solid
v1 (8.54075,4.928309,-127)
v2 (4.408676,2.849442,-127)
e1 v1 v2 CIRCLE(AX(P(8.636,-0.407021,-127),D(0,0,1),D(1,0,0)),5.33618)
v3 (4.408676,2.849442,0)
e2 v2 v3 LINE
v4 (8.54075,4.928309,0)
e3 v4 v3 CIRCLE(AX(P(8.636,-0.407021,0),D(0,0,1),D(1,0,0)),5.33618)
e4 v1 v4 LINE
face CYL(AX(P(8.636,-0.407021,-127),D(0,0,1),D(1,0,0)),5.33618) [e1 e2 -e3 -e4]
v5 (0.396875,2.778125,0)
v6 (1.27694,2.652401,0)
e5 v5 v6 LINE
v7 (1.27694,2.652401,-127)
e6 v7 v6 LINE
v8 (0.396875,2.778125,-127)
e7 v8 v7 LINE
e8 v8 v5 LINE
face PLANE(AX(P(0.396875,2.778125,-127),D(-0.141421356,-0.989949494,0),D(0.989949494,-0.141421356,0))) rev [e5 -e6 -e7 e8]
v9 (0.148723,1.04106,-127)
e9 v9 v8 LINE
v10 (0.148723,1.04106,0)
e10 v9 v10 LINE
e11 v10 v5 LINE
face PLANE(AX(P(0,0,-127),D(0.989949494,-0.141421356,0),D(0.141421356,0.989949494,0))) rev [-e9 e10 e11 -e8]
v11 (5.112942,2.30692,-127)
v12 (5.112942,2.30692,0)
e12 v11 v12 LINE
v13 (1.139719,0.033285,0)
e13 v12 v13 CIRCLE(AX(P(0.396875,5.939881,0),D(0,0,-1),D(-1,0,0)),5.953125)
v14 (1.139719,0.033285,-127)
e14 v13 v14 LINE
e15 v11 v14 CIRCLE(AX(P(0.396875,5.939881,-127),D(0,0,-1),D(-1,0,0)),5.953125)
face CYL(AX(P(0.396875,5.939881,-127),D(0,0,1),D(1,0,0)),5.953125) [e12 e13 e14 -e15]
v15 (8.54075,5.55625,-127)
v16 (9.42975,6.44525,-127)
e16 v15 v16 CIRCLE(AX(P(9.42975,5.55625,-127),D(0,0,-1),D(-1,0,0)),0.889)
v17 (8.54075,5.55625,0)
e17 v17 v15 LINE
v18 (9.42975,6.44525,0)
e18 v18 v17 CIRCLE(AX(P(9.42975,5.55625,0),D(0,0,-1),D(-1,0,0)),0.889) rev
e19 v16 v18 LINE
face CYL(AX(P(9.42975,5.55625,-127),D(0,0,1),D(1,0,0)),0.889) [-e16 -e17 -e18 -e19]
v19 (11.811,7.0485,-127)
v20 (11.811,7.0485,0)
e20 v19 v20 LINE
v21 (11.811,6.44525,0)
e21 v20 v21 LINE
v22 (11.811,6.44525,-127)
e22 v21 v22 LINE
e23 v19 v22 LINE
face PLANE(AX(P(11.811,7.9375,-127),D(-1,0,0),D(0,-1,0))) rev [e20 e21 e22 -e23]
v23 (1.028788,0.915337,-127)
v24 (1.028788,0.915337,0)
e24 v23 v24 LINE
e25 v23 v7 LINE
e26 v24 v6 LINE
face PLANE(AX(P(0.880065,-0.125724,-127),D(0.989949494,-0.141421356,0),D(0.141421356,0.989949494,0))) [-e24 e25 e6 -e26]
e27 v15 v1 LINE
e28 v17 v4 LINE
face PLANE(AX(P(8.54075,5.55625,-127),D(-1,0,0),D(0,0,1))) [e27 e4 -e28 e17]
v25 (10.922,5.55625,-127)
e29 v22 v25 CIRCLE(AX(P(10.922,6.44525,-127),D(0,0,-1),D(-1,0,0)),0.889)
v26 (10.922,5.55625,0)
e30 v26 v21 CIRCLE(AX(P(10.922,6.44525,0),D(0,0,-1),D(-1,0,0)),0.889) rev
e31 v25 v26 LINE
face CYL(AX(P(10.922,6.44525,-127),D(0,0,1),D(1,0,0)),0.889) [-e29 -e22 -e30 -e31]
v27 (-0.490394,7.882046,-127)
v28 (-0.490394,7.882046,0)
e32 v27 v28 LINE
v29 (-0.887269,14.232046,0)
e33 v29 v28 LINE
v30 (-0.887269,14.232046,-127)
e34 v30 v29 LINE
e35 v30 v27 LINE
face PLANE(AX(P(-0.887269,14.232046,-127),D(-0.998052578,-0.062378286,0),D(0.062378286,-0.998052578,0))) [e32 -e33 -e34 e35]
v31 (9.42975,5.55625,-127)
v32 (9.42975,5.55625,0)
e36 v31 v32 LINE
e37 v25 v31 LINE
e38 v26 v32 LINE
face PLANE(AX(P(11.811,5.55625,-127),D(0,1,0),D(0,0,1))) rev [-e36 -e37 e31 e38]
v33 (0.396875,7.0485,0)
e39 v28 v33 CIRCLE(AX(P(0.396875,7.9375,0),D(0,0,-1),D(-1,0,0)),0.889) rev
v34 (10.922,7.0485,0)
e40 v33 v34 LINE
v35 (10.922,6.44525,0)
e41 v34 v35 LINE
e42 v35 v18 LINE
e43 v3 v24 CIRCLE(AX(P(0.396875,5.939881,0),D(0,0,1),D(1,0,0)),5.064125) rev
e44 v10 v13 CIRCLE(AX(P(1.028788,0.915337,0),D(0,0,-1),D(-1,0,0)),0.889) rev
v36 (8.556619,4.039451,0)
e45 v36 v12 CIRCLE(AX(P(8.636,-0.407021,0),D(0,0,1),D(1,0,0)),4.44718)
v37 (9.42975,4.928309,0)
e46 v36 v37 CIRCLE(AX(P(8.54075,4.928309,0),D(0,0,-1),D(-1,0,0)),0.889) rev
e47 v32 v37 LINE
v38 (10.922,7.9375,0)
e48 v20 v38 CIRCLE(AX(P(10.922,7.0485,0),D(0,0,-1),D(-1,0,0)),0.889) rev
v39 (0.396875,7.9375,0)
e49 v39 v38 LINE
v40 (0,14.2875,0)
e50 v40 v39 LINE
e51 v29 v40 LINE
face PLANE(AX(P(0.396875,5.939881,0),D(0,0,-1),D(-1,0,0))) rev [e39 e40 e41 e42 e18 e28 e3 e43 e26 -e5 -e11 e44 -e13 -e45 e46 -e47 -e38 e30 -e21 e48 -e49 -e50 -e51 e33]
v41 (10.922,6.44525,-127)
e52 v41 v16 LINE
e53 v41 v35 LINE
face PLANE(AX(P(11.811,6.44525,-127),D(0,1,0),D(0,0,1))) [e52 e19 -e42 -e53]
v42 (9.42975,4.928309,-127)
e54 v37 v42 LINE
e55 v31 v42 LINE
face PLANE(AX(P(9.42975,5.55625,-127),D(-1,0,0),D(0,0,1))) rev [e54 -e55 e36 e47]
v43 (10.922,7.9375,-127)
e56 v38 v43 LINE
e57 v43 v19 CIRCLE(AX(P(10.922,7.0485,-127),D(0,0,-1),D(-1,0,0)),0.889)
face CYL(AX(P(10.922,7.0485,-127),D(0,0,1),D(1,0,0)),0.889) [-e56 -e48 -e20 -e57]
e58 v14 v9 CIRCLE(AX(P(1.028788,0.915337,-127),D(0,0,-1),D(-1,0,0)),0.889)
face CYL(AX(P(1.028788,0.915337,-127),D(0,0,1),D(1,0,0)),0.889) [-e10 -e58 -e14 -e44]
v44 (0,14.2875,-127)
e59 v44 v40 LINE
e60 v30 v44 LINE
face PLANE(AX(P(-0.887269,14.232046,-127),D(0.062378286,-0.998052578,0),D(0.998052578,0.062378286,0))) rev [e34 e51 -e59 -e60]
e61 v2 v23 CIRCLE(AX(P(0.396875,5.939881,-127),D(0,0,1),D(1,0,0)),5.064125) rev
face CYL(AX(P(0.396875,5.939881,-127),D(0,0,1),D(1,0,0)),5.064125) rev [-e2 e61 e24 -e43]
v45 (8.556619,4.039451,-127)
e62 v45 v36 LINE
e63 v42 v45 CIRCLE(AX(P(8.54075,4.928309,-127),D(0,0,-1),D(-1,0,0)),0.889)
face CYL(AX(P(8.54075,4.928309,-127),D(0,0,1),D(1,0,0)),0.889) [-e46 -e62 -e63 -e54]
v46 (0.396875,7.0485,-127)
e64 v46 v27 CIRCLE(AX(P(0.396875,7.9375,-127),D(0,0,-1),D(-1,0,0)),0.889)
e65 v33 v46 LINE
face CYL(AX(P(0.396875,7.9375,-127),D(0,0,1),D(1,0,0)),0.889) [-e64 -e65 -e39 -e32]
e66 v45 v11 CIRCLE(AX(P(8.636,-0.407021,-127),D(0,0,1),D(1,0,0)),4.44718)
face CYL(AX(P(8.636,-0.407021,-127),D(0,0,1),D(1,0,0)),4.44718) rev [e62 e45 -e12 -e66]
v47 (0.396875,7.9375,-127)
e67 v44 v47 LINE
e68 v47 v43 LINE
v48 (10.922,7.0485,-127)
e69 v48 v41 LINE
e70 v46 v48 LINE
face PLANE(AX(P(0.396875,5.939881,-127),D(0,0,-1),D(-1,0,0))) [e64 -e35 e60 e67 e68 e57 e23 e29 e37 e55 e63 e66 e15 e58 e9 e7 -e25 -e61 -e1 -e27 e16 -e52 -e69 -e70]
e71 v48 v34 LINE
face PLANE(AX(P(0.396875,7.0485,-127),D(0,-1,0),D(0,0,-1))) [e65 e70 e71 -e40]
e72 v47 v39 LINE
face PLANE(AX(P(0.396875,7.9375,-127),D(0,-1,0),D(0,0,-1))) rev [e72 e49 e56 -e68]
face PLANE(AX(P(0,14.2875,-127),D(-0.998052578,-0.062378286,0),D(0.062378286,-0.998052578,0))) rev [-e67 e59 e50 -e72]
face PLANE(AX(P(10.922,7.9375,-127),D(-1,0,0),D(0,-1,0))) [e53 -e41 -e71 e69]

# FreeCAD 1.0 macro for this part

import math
import FreeCAD as App
import Part
import Sketcher

V = App.Vector
Q = App.Units.Quantity


def edges_at(feature, points):
    """Names of the edges that pass closest to the given points."""
    edges = feature.Shape.Edges
    near = lambda p: min(range(len(edges)), key=lambda i: edges[i].distToShape(Part.Vertex(*p))[0])
    return sorted({f"Edge{near(p) + 1}" for p in points})

doc = App.newDocument("Part")
body = doc.addObject("PartDesign::Body", "Body")

sketch1 = doc.addObject("Sketcher::SketchObject", "Sketch")
body.addObject(sketch1)
sketch1.AttachmentSupport = (doc.XY_Plane, [""])
sketch1.MapMode = "FlatFace"
sketch1.addGeometry([
    Part.LineSegment(V(0.4, 7.9, 0), V(0, 14.3, 0)),
    Part.LineSegment(V(0, 14.3, 0), V(-0.9, 14.2, 0)),
    Part.LineSegment(V(-0.9, 14.2, 0), V(-0.4, 7, 0)),
    Part.LineSegment(V(-0.4, 7, 0), V(10.9, 7, 0)),
    Part.LineSegment(V(10.9, 7, 0), V(10.9, 6.4, 0)),
    Part.LineSegment(V(10.9, 6.4, 0), V(8.5, 6.4, 0)),
    Part.LineSegment(V(8.5, 6.4, 0), V(8.5, 4.9, 0)),
    Part.ArcOfCircle(Part.Circle(V(8.6, -0.4, 0), V(0, 0, 1), 5.3), math.radians(91), math.radians(142)),
    Part.ArcOfCircle(Part.Circle(V(0.4, 5.9, 0), V(0, 0, 1), 5.1), math.radians(-83), math.radians(-38)),
    Part.LineSegment(V(1, 0.9, 0), V(1.3, 2.7, 0)),
    Part.LineSegment(V(1.3, 2.7, 0), V(0.4, 2.8, 0)),
    Part.LineSegment(V(0.4, 2.8, 0), V(0, 0, 0)),
    Part.ArcOfCircle(Part.Circle(V(0.4, 5.9, 0), V(0, 0, 1), 6), math.radians(-94), math.radians(-38)),
    Part.ArcOfCircle(Part.Circle(V(8.6, -0.4, 0), V(0, 0, 1), 4.4), math.radians(80), math.radians(142)),
    Part.LineSegment(V(9.4, 4, 0), V(9.4, 5.6, 0)),
    Part.LineSegment(V(9.4, 5.6, 0), V(11.8, 5.6, 0)),
    Part.LineSegment(V(11.8, 5.6, 0), V(11.8, 7.9, 0)),
    Part.LineSegment(V(11.8, 7.9, 0), V(0.4, 7.9, 0)),
], False)
sketch1.addConstraint([
    Sketcher.Constraint("Coincident", 0, 2, 1, 1),
    Sketcher.Constraint("Coincident", 1, 2, 2, 1),
    Sketcher.Constraint("Coincident", 2, 2, 3, 1),
    Sketcher.Constraint("Coincident", 3, 2, 4, 1),
    Sketcher.Constraint("Coincident", 4, 2, 5, 1),
    Sketcher.Constraint("Coincident", 5, 2, 6, 1),
    Sketcher.Constraint("Coincident", 6, 2, 7, 1),
    Sketcher.Constraint("Tangent", 7, 2, 8, 2),
    Sketcher.Constraint("Coincident", 8, 1, 9, 1),
    Sketcher.Constraint("Coincident", 9, 2, 10, 1),
    Sketcher.Constraint("Coincident", 10, 2, 11, 1),
    Sketcher.Constraint("Coincident", 11, 2, 12, 1),
    Sketcher.Constraint("Tangent", 12, 2, 13, 2),
    Sketcher.Constraint("Coincident", 13, 1, 14, 1),
    Sketcher.Constraint("Coincident", 14, 2, 15, 1),
    Sketcher.Constraint("Coincident", 15, 2, 16, 1),
    Sketcher.Constraint("Coincident", 16, 2, 17, 1),
    Sketcher.Constraint("Coincident", 17, 2, 0, 1),
    Sketcher.Constraint("Horizontal", 3),
    Sketcher.Constraint("Vertical", 4),
    Sketcher.Constraint("Horizontal", 5),
    Sketcher.Constraint("Vertical", 6),
    Sketcher.Constraint("Vertical", 14),
    Sketcher.Constraint("Horizontal", 15),
    Sketcher.Constraint("Vertical", 16),
    Sketcher.Constraint("Horizontal", 17),
    Sketcher.Constraint("Coincident", 11, 2, -1, 1),
    Sketcher.Constraint("Coincident", 12, 3, 8, 3),
    Sketcher.Constraint("Coincident", 13, 3, 7, 3),
    Sketcher.Constraint("PointOnObject", 0, 2, -2),
    Sketcher.Constraint("Perpendicular", 0, 1),
    Sketcher.Constraint("Perpendicular", 1, 2),
    Sketcher.Constraint("Perpendicular", 9, 10),
    Sketcher.Constraint("Perpendicular", 10, 11),
    Sketcher.Constraint("Vertical", 12, 3, 10, 2),
    Sketcher.Constraint("Vertical", 10, 2, 17, 2),
    Sketcher.Constraint("Equal", 5, 15),
    Sketcher.Constraint("Equal", 15, 16),
    Sketcher.Constraint("Equal", 1, 10),
    Sketcher.Constraint("Radius", 12, Q("0.234375 in")),
    Sketcher.Constraint("DistanceX", 5, 2, 5, 1, Q("0.09375 in")),
    Sketcher.Constraint("DistanceY", 14, 1, 14, 2, Q("0.0625 in")),
    Sketcher.Constraint("DistanceX", -1, 1, 7, 3, Q("0.34 in")),
    Sketcher.Constraint("DistanceX", -1, 1, 3, 2, Q("0.43 in")),
    Sketcher.Constraint("Distance", 1, Q("0.035 in")),
    Sketcher.Constraint("DistanceX", -1, 1, 8, 3, Q("0.015625 in")),
    Sketcher.Constraint("DistanceY", -1, 1, 0, 2, Q("0.5625 in")),
    Sketcher.Constraint("DistanceY", -1, 1, 10, 2, Q("0.109375 in")),
    Sketcher.Constraint("DistanceY", -1, 1, 13, 1, Q("0.15625 in")),
    Sketcher.Constraint("DistanceX", -1, 1, 15, 2, Q("0.465 in")),
    Sketcher.Constraint("Radius", 7, Q("5.33618 mm")),
    Sketcher.Constraint("DistanceY", 2, 2, 0, 2, Q("0.285 in")),
    Sketcher.Constraint("DistanceY", 14, 2, 5, 2, Q("0.035 in")),
])
pad1 = doc.addObject("PartDesign::Pad", "Pad")
body.addObject(pad1)
pad1.Profile = sketch1
pad1.Length = Q("5 in")
pad1.Reversed = True
doc.recompute()

fillet = doc.addObject("PartDesign::Fillet", "Fillet")
body.addObject(fillet)
fillet.Base = (pad1, edges_at(pad1, [
    (8.541, 6.445, -63.5),
    (-0.438, 7.048, -63.5),
    (11.811, 7.938, -63.5),
    (11.811, 5.556, -63.5),
    (9.43, 3.969, -63.5),
    (0, 0, -63.5),
]))
fillet.Radius = Q("0.035 in")

doc.recompute()
